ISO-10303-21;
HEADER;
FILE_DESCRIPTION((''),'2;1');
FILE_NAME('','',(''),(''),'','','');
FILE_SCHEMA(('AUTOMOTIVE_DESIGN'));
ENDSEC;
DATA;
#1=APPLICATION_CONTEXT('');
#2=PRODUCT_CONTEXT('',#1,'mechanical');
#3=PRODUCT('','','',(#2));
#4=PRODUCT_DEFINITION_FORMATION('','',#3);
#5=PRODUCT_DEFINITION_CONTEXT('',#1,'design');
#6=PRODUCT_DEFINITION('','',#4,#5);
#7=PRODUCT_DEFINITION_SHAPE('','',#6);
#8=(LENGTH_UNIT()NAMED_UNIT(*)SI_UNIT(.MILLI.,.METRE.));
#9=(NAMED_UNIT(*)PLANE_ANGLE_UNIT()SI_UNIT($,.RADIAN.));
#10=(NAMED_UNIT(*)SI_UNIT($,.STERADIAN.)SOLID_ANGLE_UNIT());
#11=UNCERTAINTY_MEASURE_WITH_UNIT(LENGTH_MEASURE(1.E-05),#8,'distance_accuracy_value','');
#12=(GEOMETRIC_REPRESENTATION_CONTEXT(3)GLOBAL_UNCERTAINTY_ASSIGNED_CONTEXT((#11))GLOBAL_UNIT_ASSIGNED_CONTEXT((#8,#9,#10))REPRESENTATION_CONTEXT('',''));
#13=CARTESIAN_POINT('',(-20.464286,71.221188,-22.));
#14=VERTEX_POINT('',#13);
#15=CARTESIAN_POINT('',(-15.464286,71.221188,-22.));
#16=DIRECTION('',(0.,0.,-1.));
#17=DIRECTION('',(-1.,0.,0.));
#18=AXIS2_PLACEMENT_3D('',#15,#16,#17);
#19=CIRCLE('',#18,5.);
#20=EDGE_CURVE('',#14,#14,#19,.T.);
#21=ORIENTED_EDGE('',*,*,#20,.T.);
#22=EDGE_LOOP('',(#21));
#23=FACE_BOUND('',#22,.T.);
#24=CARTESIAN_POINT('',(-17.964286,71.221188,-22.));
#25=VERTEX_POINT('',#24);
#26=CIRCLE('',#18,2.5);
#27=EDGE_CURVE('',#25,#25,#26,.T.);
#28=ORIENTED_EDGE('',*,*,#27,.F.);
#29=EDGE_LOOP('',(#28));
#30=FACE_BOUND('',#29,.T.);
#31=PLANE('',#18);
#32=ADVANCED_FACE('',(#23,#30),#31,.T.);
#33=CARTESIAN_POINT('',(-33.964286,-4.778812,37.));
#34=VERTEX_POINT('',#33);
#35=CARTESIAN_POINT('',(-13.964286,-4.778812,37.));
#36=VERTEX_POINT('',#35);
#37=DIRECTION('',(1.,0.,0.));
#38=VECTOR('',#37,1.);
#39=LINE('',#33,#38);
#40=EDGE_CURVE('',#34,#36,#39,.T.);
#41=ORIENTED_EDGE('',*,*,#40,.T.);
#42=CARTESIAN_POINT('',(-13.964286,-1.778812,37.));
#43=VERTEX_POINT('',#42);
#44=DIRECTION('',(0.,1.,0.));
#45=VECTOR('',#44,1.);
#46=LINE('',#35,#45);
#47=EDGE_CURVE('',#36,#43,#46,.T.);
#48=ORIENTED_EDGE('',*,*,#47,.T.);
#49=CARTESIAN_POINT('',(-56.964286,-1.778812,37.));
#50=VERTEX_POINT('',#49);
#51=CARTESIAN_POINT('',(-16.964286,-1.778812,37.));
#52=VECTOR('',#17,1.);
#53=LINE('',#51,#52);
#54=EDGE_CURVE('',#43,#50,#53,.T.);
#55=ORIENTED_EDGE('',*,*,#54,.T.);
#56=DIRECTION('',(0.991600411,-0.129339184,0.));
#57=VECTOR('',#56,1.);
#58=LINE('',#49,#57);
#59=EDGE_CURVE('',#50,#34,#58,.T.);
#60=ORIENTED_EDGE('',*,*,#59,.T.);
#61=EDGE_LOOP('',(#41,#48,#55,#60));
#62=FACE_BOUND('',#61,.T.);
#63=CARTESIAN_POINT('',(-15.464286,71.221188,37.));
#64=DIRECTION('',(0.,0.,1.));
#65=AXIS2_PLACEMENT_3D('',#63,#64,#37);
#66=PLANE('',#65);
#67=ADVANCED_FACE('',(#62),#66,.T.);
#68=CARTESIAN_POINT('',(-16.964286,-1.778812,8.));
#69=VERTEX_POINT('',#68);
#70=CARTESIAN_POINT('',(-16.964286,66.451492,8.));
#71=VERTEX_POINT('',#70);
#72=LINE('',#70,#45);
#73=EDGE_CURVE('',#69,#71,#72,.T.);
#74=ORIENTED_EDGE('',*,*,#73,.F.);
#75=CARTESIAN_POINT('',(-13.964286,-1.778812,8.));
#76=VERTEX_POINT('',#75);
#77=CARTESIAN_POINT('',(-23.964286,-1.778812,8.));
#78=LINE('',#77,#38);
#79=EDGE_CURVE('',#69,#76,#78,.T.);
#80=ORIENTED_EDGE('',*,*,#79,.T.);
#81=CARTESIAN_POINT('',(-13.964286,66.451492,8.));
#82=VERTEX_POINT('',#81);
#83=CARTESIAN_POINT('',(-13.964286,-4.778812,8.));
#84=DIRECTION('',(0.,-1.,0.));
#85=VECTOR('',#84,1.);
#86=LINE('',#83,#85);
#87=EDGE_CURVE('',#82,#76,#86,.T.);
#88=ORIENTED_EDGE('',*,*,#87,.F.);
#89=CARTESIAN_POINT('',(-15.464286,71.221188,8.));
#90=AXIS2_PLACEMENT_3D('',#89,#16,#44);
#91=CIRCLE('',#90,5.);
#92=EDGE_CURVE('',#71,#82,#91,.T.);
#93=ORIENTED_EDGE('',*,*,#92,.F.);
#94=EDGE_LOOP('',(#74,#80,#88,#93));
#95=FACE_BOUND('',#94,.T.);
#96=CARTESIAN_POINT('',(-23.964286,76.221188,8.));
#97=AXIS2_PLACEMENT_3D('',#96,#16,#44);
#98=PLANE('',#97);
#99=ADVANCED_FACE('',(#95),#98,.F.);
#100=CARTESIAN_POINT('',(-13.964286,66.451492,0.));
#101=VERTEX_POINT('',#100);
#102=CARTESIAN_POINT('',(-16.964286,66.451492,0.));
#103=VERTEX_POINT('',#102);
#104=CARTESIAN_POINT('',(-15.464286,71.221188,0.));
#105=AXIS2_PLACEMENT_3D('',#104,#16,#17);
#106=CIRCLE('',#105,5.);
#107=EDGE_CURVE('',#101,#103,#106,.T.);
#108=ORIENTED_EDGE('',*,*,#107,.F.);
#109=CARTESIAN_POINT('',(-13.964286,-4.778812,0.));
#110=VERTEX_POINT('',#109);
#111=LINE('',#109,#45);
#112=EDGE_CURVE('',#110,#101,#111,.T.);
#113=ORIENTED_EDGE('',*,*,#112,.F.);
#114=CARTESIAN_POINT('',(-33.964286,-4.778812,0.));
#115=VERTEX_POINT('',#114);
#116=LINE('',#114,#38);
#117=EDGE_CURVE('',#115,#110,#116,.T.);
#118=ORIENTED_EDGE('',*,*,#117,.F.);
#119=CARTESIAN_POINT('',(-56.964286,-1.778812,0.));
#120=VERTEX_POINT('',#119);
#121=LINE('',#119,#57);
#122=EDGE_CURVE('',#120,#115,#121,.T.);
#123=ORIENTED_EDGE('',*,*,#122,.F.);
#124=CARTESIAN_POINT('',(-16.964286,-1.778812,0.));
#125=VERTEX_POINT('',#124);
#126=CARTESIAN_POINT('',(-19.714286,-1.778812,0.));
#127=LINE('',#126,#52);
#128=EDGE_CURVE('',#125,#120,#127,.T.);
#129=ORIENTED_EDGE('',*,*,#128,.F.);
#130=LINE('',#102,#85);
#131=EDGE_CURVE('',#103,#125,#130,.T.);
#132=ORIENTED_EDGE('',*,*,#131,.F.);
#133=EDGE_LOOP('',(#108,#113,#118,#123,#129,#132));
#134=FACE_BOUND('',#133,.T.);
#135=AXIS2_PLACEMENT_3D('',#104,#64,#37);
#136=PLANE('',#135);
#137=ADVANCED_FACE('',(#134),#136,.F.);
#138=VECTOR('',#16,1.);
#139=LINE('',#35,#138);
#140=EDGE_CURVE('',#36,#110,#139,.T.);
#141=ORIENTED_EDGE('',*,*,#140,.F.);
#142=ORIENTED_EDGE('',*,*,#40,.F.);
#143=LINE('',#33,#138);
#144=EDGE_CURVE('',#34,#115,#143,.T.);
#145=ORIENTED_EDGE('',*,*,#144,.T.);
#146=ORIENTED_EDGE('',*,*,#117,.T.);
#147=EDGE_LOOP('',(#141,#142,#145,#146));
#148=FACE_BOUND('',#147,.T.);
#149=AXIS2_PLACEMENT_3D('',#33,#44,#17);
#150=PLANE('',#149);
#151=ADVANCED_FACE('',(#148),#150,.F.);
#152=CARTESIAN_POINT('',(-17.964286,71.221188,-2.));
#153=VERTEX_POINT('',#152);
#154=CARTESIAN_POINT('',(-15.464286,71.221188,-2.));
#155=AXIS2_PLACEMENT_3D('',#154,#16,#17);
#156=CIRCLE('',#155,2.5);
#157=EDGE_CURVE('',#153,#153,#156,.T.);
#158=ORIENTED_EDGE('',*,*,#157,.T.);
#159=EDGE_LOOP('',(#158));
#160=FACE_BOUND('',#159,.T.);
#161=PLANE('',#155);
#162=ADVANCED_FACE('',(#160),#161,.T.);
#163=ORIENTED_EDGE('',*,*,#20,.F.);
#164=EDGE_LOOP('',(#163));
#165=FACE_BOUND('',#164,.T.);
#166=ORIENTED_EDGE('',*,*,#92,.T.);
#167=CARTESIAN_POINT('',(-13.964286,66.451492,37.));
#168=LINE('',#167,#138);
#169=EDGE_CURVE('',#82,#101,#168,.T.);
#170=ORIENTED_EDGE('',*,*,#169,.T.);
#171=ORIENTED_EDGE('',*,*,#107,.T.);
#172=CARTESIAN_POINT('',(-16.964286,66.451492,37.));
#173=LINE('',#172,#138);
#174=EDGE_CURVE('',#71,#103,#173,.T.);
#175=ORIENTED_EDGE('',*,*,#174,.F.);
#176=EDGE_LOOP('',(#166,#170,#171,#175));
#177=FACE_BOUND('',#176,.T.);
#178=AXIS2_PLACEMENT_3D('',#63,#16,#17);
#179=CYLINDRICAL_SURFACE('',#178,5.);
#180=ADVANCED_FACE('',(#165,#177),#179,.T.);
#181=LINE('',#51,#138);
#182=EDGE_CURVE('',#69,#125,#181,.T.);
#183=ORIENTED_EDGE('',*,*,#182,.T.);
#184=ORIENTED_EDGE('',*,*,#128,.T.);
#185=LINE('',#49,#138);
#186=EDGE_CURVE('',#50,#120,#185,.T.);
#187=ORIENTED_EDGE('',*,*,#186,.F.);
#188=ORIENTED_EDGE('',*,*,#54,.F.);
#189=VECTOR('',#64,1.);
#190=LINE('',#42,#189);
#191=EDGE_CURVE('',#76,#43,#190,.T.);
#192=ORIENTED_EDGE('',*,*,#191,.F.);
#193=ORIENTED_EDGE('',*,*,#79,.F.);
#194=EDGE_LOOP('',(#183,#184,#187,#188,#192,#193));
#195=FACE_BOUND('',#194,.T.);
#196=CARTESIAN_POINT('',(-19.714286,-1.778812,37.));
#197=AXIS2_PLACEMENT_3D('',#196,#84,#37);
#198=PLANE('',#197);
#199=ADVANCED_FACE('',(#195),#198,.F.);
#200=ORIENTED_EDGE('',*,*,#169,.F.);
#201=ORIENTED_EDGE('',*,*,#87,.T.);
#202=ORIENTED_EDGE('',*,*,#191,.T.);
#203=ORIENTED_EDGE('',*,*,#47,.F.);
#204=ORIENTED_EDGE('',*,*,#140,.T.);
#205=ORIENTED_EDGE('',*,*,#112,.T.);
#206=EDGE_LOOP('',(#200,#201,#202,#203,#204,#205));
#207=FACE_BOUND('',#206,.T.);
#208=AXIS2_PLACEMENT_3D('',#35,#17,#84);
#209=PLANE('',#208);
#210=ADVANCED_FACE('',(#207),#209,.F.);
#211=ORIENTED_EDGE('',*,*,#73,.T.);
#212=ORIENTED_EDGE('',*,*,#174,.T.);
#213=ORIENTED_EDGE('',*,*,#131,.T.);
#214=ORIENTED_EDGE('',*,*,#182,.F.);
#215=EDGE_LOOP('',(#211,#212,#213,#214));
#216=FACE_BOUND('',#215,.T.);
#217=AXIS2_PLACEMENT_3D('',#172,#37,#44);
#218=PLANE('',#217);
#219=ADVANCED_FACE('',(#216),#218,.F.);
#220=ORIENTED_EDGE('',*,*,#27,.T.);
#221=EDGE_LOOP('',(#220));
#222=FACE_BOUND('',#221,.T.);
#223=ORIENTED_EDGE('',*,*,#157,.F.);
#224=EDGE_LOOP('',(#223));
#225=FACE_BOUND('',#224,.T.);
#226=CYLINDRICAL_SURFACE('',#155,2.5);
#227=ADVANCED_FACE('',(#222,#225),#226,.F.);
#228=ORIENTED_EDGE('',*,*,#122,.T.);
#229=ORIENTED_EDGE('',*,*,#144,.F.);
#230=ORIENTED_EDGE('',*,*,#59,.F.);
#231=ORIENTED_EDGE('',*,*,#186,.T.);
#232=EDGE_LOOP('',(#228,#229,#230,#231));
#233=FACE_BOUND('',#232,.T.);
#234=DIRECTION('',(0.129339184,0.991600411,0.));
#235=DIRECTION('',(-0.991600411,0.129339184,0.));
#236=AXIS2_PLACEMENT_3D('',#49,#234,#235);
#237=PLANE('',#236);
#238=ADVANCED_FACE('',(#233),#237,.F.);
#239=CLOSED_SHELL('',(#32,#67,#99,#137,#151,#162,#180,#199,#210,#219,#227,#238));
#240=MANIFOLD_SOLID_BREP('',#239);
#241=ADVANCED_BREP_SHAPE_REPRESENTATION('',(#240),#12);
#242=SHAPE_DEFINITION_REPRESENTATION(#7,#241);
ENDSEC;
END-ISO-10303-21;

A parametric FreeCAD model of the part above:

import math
import FreeCAD as App
import Part
import Sketcher
Q = App.Units.Quantity


def add_polygon(sketch, points):
    """Adds a closed chain of lines whose ends are joined by coincident constraints."""
    first, n = sketch.GeometryCount, len(points)
    for a, b in zip(points, points[1:] + points[:1]):
        sketch.addGeometry(Part.LineSegment(App.Vector(*a, 0), App.Vector(*b, 0)), False)
    for i in range(n):
        sketch.addConstraint(Sketcher.Constraint("Coincident", first + i, 2, first + (i + 1) % n, 1))

doc = App.newDocument("Part")
body = doc.addObject("PartDesign::Body", "Body")

# Sketch on XY plane
sketch1 = body.newObject("Sketcher::SketchObject", "Sketch")
sketch1.AttachmentSupport = (doc.getObject("XY_Plane"), [""])
sketch1.MapMode = "FlatFace"
sketch1.addGeometry([
    Part.LineSegment(App.Vector(-56.964286, -1.778812, 0), App.Vector(-33.964286, -4.778812, 0)),  # 0
    Part.LineSegment(App.Vector(-33.964286, -4.778812, 0), App.Vector(-13.964286, -4.778812, 0)),  # 1
    Part.LineSegment(App.Vector(-13.964286, -4.778812, 0), App.Vector(-13.964286, 66.451492, 0)),  # 2
    Part.ArcOfCircle(Part.Circle(App.Vector(-15.464286, 71.221188, 0), App.Vector(0, 0, 1), 5), math.radians(-72.542397), math.radians(252.542397)),  # 3
    Part.LineSegment(App.Vector(-16.964286, 66.451492, 0), App.Vector(-16.964286, -1.778812, 0)),  # 4
    Part.LineSegment(App.Vector(-16.964286, -1.778812, 0), App.Vector(-56.964286, -1.778812, 0)),  # 5
], False)
sketch1.addConstraint([
    Sketcher.Constraint("Coincident", 0, 2, 1, 1),
    Sketcher.Constraint("Coincident", 1, 2, 2, 1),
    Sketcher.Constraint("Coincident", 2, 2, 3, 1),
    Sketcher.Constraint("Coincident", 3, 2, 4, 1),
    Sketcher.Constraint("Coincident", 4, 2, 5, 1),
    Sketcher.Constraint("Coincident", 5, 2, 0, 1),
    Sketcher.Constraint("Horizontal", 1),
    Sketcher.Constraint("Vertical", 2),
    Sketcher.Constraint("Vertical", 4),
    Sketcher.Constraint("Horizontal", 5),
    Sketcher.Constraint("Horizontal", 2, 2, 3, 2),
    Sketcher.Constraint("Radius", 3, Q("5 mm")),
    Sketcher.Constraint("DistanceX", 1, 1, 1, 2, Q("20 mm")),
    Sketcher.Constraint("DistanceX", 5, 2, 5, 1, Q("40 mm")),
    Sketcher.Constraint("DistanceY", 0, 2, 3, 3, Q("76 mm")),
    Sketcher.Constraint("DistanceX", 3, 2, 2, 2, Q("3 mm")),
    Sketcher.Constraint("DistanceY", 1, 2, 4, 2, Q("3 mm")),
    Sketcher.Constraint("DistanceY", -1, 1, 2, 2, Q("66.451492 mm")),
    Sketcher.Constraint("DistanceX", 3, 3, -1, 1, Q("15.464286 mm")),
])
pad1 = body.newObject("PartDesign::Pad", "Pad")
pad1.Profile = sketch1
pad1.Length = 37

# Sketch on YZ plane
sketch2 = body.newObject("Sketcher::SketchObject", "Sketch001")
sketch2.AttachmentSupport = (doc.getObject("YZ_Plane"), [""])
sketch2.MapMode = "FlatFace"
sketch2.AttachmentOffset = App.Placement(App.Vector(0, 0, -13.964286), App.Rotation())
add_polygon(sketch2, [(76.221188, 37), (-1.778812, 37), (-1.778812, 8), (76.221188, 8)])  # lines 0-3
sketch2.addConstraint([
    Sketcher.Constraint("Horizontal", 0),
    Sketcher.Constraint("Vertical", 1),
    Sketcher.Constraint("Horizontal", 2),
    Sketcher.Constraint("Vertical", 3),
    Sketcher.Constraint("DistanceX", 0, 2, 0, 1, Q("78 mm")),
    Sketcher.Constraint("DistanceY", 1, 2, 1, 1, Q("29 mm")),
    Sketcher.Constraint("DistanceY", -1, 1, 0, 2, Q("37 mm")),
    Sketcher.Constraint("DistanceX", 0, 2, -1, 1, Q("1.778812 mm")),
])
pocket1 = body.newObject("PartDesign::Pocket", "Pocket")
pocket1.Profile = sketch2
pocket1.Length = 20
pocket1.Midplane = True

# Sketch on XY plane
sketch3 = body.newObject("Sketcher::SketchObject", "Sketch002")
sketch3.AttachmentSupport = (doc.getObject("XY_Plane"), [""])
sketch3.MapMode = "FlatFace"
sketch3.AttachmentOffset = App.Placement(App.Vector(0, 0, -22), App.Rotation())
sketch3.addGeometry(Part.Circle(App.Vector(-15.464286, 71.221188, 0), App.Vector(0, 0, 1), 5), False)
sketch3.addConstraint([
    Sketcher.Constraint("Diameter", 0, Q("10 mm")),
    Sketcher.Constraint("DistanceX", 0, 3, -1, 1, Q("15.464286 mm")),
    Sketcher.Constraint("DistanceY", -1, 1, 0, 3, Q("71.221188 mm")),
])
pad2 = body.newObject("PartDesign::Pad", "Pad001")
pad2.Profile = sketch3
pad2.Length = 22

# Sketch on XY plane
sketch4 = body.newObject("Sketcher::SketchObject", "Sketch003")
sketch4.AttachmentSupport = (doc.getObject("XY_Plane"), [""])
sketch4.MapMode = "FlatFace"
sketch4.AttachmentOffset = App.Placement(App.Vector(0, 0, -22), App.Rotation())
sketch4.addGeometry(Part.Circle(App.Vector(-15.464286, 71.221188, 0), App.Vector(0, 0, 1), 2.5), False)
sketch4.addConstraint([
    Sketcher.Constraint("Diameter", 0, Q("5 mm")),
    Sketcher.Constraint("DistanceX", 0, 3, -1, 1, Q("15.464286 mm")),
    Sketcher.Constraint("DistanceY", -1, 1, 0, 3, Q("71.221188 mm")),
])
pocket2 = body.newObject("PartDesign::Pocket", "Pocket001")
pocket2.Profile = sketch4
pocket2.Length = 20
pocket2.Reversed = True

doc.recompute()
